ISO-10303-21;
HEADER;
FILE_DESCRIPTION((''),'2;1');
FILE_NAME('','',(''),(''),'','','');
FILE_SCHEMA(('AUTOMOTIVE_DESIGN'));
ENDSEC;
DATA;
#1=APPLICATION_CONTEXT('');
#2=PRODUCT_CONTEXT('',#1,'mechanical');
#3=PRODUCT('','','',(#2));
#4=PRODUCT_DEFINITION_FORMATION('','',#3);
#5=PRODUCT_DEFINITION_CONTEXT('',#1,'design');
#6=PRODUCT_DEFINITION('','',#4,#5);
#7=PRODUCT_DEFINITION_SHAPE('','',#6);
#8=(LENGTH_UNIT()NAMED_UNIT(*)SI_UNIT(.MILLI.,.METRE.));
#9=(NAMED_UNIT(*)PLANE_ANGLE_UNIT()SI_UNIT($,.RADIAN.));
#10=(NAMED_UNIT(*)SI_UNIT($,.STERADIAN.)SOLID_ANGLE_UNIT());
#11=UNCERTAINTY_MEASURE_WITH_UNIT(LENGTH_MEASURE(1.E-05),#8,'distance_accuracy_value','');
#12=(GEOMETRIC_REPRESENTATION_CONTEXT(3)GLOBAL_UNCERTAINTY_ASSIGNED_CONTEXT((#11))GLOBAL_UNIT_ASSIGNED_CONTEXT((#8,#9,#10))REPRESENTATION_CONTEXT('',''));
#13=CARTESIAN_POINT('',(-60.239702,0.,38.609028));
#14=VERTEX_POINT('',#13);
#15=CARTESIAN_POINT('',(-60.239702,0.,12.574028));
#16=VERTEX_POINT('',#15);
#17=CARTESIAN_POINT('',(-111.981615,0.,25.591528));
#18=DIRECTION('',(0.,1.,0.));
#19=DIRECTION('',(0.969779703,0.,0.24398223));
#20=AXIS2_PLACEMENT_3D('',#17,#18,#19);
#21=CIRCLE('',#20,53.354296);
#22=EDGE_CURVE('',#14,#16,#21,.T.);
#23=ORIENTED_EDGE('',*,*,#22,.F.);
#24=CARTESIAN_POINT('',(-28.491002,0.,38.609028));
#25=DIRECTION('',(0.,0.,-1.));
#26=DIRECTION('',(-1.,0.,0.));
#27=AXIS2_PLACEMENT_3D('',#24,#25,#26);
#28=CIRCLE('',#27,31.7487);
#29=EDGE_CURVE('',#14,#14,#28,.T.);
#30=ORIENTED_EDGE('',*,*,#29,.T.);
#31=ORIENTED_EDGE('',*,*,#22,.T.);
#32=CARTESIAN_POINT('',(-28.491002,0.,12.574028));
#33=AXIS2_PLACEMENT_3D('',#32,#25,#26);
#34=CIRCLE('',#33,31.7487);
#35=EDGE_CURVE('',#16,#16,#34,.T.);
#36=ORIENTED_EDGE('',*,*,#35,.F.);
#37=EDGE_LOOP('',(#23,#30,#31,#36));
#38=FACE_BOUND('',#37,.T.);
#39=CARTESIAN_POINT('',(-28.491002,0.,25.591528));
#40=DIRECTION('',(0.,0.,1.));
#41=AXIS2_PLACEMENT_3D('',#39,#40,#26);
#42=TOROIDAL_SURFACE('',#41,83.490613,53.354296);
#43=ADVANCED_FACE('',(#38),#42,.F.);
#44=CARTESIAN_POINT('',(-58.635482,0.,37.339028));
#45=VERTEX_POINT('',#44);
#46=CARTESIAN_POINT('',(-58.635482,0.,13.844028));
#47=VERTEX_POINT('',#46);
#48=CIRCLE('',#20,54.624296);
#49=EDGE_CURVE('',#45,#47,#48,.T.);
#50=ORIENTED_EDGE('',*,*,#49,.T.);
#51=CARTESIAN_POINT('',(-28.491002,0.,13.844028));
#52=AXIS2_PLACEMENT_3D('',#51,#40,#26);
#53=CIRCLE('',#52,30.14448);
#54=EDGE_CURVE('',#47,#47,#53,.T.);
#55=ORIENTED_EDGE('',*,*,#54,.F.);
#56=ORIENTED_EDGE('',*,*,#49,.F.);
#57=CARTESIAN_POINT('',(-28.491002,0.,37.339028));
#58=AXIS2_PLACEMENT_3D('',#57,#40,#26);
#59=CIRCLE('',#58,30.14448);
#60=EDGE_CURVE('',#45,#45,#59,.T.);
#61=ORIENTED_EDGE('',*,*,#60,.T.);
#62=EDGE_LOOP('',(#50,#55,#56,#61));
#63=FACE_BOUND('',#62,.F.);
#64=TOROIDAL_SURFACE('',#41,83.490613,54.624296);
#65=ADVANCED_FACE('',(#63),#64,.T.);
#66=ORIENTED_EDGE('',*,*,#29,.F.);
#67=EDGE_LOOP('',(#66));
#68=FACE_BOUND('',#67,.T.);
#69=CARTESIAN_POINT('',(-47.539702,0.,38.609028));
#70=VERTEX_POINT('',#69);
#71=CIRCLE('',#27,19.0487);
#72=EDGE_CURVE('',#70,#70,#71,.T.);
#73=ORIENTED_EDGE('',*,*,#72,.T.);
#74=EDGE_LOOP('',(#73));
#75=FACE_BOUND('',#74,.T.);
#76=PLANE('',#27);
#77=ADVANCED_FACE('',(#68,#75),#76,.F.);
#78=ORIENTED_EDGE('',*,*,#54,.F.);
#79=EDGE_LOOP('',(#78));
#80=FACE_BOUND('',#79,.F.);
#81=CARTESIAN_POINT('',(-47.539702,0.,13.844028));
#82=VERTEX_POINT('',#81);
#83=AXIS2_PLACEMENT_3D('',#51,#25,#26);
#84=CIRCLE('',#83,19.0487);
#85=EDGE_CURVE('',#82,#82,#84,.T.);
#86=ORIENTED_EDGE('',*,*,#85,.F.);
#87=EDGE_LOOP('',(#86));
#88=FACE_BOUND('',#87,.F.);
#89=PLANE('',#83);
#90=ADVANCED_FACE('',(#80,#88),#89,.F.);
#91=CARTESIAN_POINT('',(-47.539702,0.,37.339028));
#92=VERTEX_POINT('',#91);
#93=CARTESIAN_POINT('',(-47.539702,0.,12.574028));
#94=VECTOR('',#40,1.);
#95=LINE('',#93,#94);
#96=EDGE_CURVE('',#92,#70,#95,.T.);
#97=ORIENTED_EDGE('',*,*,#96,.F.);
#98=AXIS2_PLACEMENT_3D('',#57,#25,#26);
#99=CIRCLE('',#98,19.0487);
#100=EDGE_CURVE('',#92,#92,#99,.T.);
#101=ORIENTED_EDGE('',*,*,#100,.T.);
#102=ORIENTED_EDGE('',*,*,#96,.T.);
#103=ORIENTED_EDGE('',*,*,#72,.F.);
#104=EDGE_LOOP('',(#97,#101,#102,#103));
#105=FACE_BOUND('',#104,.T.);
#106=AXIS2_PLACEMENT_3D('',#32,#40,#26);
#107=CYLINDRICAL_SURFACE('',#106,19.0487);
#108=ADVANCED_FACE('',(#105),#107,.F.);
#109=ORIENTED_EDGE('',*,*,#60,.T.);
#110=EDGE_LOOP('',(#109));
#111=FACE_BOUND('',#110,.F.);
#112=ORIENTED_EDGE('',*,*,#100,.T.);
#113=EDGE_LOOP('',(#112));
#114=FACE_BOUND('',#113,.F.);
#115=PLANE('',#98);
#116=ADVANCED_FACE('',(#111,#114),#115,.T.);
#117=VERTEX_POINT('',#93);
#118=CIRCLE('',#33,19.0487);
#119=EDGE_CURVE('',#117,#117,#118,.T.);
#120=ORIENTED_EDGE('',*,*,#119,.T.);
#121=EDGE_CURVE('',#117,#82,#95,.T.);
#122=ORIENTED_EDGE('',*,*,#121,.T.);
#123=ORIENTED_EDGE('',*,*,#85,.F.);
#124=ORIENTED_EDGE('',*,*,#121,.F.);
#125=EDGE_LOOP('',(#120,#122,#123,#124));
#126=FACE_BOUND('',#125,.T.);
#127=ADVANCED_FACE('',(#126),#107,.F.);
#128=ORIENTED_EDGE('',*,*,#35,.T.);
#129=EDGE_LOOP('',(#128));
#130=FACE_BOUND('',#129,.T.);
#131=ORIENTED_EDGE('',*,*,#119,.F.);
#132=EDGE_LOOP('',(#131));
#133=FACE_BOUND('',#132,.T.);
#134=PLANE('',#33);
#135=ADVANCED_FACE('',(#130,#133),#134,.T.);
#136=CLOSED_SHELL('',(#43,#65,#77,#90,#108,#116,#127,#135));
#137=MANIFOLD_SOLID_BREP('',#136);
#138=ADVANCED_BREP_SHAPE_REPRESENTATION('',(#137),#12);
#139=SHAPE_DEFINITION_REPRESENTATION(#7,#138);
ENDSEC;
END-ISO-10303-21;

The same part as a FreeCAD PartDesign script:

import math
import FreeCAD as App
import Part
import Sketcher
from FreeCAD import Vector
Q = App.Units.Quantity


def faces_at(feature, points):
    """Names of the faces that lie closest to the given points."""
    faces = feature.Shape.Faces
    near = lambda p: min(range(len(faces)), key=lambda i: faces[i].distToShape(Part.Vertex(*p))[0])
    return sorted({f"Face{near(p) + 1}" for p in points})

doc = App.newDocument("Part")
body = doc.addObject("PartDesign::Body", "Body")

sketch1 = body.newObject("Sketcher::SketchObject", "Sketch")
sketch1.AttachmentSupport = (doc.getObject("XZ_Plane"), [""])
sketch1.MapMode = "FlatFace"
sketch1.addGeometry([
    Part.ArcOfCircle(Part.Circle(Vector(-112, 26, 0), Vector(0, 0, 1), 53), math.radians(-14), math.radians(14)),
    Part.LineSegment(Vector(-60, 13, 0), Vector(-48, 13, 0)),
    Part.LineSegment(Vector(-48, 13, 0), Vector(-48, 39, 0)),
    Part.LineSegment(Vector(-48, 39, 0), Vector(-60, 39, 0)),
], False)
sketch1.addGeometry(Part.LineSegment(Vector(-28, 39, 0), Vector(-28, 13, 0)), True)
sketch1.addConstraint([
    Sketcher.Constraint("Coincident", 0, 1, 1, 1),
    Sketcher.Constraint("Coincident", 1, 2, 2, 1),
    Sketcher.Constraint("Coincident", 2, 2, 3, 1),
    Sketcher.Constraint("Coincident", 3, 2, 0, 2),
    Sketcher.Constraint("Horizontal", 1),
    Sketcher.Constraint("Vertical", 2),
    Sketcher.Constraint("Horizontal", 3),
    Sketcher.Constraint("Vertical", 4),
    Sketcher.Constraint("Horizontal", 3, 2, 4, 1),
    Sketcher.Constraint("Horizontal", 1, 2, 4, 2),
    Sketcher.Constraint("Vertical", 0, 1, 3, 2),
    Sketcher.Constraint("DistanceX", 1, 1, 1, 2, Q("0.5 in")),
    Sketcher.Constraint("DistanceY", 2, 1, 2, 2, Q("1.025 in")),
    Sketcher.Constraint("Radius", 0, 53.354296),
    Sketcher.Constraint("DistanceX", 4, 1, -1, 1, 28.491002),
    Sketcher.Constraint("DistanceX", 2, 2, 4, 1, 19.0487),
    Sketcher.Constraint("DistanceY", -1, 1, 0, 3, 25.591528),
])
revolution = body.newObject("PartDesign::Revolution", "Revolution")
revolution.Profile = sketch1
revolution.ReferenceAxis = (sketch1, ["Axis0"])
revolution.Angle = 360
doc.recompute()

thickness = body.newObject("PartDesign::Thickness", "Thickness")
thickness.Base = (revolution, faces_at(revolution, [(-9.442, 0, 25.592)]))
thickness.Value = Q("0.05 in")
thickness.Reversed = True
thickness.Join = "Arc"

doc.recompute()
